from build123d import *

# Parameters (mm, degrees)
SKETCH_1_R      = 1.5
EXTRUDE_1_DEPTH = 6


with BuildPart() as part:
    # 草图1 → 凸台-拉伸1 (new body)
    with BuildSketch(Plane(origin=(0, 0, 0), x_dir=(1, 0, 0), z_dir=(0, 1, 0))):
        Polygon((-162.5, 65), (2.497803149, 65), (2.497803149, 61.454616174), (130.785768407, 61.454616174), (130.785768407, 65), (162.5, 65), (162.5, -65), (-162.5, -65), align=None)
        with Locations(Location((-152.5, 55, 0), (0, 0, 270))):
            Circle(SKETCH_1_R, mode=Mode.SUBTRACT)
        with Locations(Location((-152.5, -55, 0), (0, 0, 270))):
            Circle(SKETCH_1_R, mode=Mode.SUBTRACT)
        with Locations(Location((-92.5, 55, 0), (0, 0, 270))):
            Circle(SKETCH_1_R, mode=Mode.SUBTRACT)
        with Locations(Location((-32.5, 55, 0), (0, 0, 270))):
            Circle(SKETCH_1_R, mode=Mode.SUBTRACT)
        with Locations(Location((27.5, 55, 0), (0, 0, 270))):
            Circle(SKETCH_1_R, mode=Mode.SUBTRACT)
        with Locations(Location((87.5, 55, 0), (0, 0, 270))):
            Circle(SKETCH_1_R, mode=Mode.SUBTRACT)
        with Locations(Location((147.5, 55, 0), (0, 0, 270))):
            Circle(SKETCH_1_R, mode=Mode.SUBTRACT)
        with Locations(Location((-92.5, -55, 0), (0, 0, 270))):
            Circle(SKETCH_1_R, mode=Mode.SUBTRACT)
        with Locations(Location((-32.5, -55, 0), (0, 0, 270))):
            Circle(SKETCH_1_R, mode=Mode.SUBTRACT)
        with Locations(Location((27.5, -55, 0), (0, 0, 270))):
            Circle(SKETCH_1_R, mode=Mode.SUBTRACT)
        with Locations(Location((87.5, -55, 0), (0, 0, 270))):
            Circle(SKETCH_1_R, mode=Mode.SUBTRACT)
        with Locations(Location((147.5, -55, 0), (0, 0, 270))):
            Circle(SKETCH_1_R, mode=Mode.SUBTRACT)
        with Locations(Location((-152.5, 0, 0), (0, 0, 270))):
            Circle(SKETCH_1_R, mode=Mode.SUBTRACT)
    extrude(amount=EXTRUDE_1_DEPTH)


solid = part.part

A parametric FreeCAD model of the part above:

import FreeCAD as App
import Part
import Sketcher
from FreeCAD import Vector

doc = App.newDocument("Part")
body = doc.addObject("PartDesign::Body", "Body")

# Sketch on XZ plane
sketch1 = doc.addObject("Sketcher::SketchObject", "Sketch")
body.addObject(sketch1)
sketch1.AttachmentSupport = (doc.XZ_Plane, [""])
sketch1.MapMode = "FlatFace"
sketch1.addGeometry([
    Part.LineSegment(Vector(2.5, -65, 0), Vector(-162.5, -65, 0)),  # 0
    Part.LineSegment(Vector(-162.5, -65, 0), Vector(-162.5, 65, 0)),  # 1
    Part.LineSegment(Vector(-162.5, 65, 0), Vector(162.5, 65, 0)),  # 2
    Part.LineSegment(Vector(162.5, 65, 0), Vector(162.5, -65, 0)),  # 3
    Part.LineSegment(Vector(162.5, -65, 0), Vector(130.8, -65, 0)),  # 4
    Part.LineSegment(Vector(130.8, -65, 0), Vector(130.8, -61.5, 0)),  # 5
    Part.LineSegment(Vector(130.8, -61.5, 0), Vector(2.5, -61.5, 0)),  # 6
    Part.LineSegment(Vector(2.5, -61.5, 0), Vector(2.5, -65, 0)),  # 7
    Part.Circle(Vector(147.5, 55, 0), Vector(0, 0, 1), 1.5),  # 8
    Part.Circle(Vector(87.5, 55, 0), Vector(0, 0, 1), 1.5),  # 9
    Part.Circle(Vector(27.5, 55, 0), Vector(0, 0, 1), 1.5),  # 10
    Part.Circle(Vector(-32.5, 55, 0), Vector(0, 0, 1), 1.5),  # 11
    Part.Circle(Vector(-92.5, 55, 0), Vector(0, 0, 1), 1.5),  # 12
    Part.Circle(Vector(-152.5, 55, 0), Vector(0, 0, 1), 1.5),  # 13
    Part.Circle(Vector(147.5, -55, 0), Vector(0, 0, 1), 1.5),  # 14
    Part.Circle(Vector(87.5, -55, 0), Vector(0, 0, 1), 1.5),  # 15
    Part.Circle(Vector(27.5, -55, 0), Vector(0, 0, 1), 1.5),  # 16
    Part.Circle(Vector(-152.5, 0, 0), Vector(0, 0, 1), 1.5),  # 17
    Part.Circle(Vector(-32.5, -55, 0), Vector(0, 0, 1), 1.5),  # 18
    Part.Circle(Vector(-92.5, -55, 0), Vector(0, 0, 1), 1.5),  # 19
    Part.Circle(Vector(-152.5, -55, 0), Vector(0, 0, 1), 1.5),  # 20
], False)
sketch1.addConstraint([
    Sketcher.Constraint("Coincident", 0, 2, 1, 1),
    Sketcher.Constraint("Coincident", 1, 2, 2, 1),
    Sketcher.Constraint("Coincident", 2, 2, 3, 1),
    Sketcher.Constraint("Coincident", 3, 2, 4, 1),
    Sketcher.Constraint("Coincident", 4, 2, 5, 1),
    Sketcher.Constraint("Coincident", 5, 2, 6, 1),
    Sketcher.Constraint("Coincident", 6, 2, 7, 1),
    Sketcher.Constraint("Coincident", 7, 2, 0, 1),
    Sketcher.Constraint("Horizontal", 0),
    Sketcher.Constraint("Vertical", 1),
    Sketcher.Constraint("Horizontal", 2),
    Sketcher.Constraint("Vertical", 3),
    Sketcher.Constraint("Horizontal", 4),
    Sketcher.Constraint("Vertical", 5),
    Sketcher.Constraint("Horizontal", 6),
    Sketcher.Constraint("Vertical", 7),
    Sketcher.Constraint("Equal", 8, 9),
    Sketcher.Constraint("Equal", 9, 10),
    Sketcher.Constraint("Equal", 10, 11),
    Sketcher.Constraint("Equal", 11, 12),
    Sketcher.Constraint("Equal", 12, 13),
    Sketcher.Constraint("Equal", 13, 14),
    Sketcher.Constraint("Equal", 14, 15),
    Sketcher.Constraint("Equal", 15, 16),
    Sketcher.Constraint("Equal", 16, 17),
    Sketcher.Constraint("Equal", 17, 18),
    Sketcher.Constraint("Equal", 18, 19),
    Sketcher.Constraint("Equal", 19, 20),
    Sketcher.Constraint("Symmetric", 0, 2, 2, 2, -1, 1),
    Sketcher.Constraint("Symmetric", 8, 3, 14, 3, -1),
    Sketcher.Constraint("Symmetric", 9, 3, 15, 3, -1),
    Sketcher.Constraint("Symmetric", 10, 3, 16, 3, -1),
    Sketcher.Constraint("Symmetric", 11, 3, 18, 3, -1),
    Sketcher.Constraint("Symmetric", 12, 3, 19, 3, -1),
    Sketcher.Constraint("Symmetric", 13, 3, 20, 3, -1),
    Sketcher.Constraint("PointOnObject", 17, 3, -1),
    Sketcher.Constraint("Horizontal", 8, 3, 9, 3),
    Sketcher.Constraint("Horizontal", 9, 3, 10, 3),
    Sketcher.Constraint("Horizontal", 10, 3, 11, 3),
    Sketcher.Constraint("Horizontal", 11, 3, 12, 3),
    Sketcher.Constraint("Horizontal", 12, 3, 13, 3),
    Sketcher.Constraint("Horizontal", 0, 2, 3, 2),
    Sketcher.Constraint("Vertical", 13, 3, 17, 3),
    Sketcher.Constraint("Diameter", 8, 3.0),
    Sketcher.Constraint("DistanceX", 2, 1, 2, 2, 325.0),
    Sketcher.Constraint("DistanceY", 1, 1, 1, 2, 130.0),
    Sketcher.Constraint("DistanceY", -1, 1, 8, 3, 55.0),
    Sketcher.Constraint("DistanceX", 9, 3, 8, 3, 60.0),
    Sketcher.Constraint("DistanceX", 10, 3, 9, 3, 60.0),
    Sketcher.Constraint("DistanceX", 11, 3, 10, 3, 60.0),
    Sketcher.Constraint("DistanceX", 12, 3, 11, 3, 60.0),
    Sketcher.Constraint("DistanceX", 13, 3, 12, 3, 60.0),
    Sketcher.Constraint("DistanceX", 0, 2, 20, 3, 10.0),
    Sketcher.Constraint("DistanceX", 4, 2, 4, 1, 31.714232),
    Sketcher.Constraint("DistanceX", 0, 2, 0, 1, 164.997803),
    Sketcher.Constraint("DistanceY", 5, 1, 5, 2, 3.545384),
])
pad1 = doc.addObject("PartDesign::Pad", "Pad")
body.addObject(pad1)
pad1.Profile = sketch1
pad1.Length = 6
pad1.Reversed = True

doc.recompute()
